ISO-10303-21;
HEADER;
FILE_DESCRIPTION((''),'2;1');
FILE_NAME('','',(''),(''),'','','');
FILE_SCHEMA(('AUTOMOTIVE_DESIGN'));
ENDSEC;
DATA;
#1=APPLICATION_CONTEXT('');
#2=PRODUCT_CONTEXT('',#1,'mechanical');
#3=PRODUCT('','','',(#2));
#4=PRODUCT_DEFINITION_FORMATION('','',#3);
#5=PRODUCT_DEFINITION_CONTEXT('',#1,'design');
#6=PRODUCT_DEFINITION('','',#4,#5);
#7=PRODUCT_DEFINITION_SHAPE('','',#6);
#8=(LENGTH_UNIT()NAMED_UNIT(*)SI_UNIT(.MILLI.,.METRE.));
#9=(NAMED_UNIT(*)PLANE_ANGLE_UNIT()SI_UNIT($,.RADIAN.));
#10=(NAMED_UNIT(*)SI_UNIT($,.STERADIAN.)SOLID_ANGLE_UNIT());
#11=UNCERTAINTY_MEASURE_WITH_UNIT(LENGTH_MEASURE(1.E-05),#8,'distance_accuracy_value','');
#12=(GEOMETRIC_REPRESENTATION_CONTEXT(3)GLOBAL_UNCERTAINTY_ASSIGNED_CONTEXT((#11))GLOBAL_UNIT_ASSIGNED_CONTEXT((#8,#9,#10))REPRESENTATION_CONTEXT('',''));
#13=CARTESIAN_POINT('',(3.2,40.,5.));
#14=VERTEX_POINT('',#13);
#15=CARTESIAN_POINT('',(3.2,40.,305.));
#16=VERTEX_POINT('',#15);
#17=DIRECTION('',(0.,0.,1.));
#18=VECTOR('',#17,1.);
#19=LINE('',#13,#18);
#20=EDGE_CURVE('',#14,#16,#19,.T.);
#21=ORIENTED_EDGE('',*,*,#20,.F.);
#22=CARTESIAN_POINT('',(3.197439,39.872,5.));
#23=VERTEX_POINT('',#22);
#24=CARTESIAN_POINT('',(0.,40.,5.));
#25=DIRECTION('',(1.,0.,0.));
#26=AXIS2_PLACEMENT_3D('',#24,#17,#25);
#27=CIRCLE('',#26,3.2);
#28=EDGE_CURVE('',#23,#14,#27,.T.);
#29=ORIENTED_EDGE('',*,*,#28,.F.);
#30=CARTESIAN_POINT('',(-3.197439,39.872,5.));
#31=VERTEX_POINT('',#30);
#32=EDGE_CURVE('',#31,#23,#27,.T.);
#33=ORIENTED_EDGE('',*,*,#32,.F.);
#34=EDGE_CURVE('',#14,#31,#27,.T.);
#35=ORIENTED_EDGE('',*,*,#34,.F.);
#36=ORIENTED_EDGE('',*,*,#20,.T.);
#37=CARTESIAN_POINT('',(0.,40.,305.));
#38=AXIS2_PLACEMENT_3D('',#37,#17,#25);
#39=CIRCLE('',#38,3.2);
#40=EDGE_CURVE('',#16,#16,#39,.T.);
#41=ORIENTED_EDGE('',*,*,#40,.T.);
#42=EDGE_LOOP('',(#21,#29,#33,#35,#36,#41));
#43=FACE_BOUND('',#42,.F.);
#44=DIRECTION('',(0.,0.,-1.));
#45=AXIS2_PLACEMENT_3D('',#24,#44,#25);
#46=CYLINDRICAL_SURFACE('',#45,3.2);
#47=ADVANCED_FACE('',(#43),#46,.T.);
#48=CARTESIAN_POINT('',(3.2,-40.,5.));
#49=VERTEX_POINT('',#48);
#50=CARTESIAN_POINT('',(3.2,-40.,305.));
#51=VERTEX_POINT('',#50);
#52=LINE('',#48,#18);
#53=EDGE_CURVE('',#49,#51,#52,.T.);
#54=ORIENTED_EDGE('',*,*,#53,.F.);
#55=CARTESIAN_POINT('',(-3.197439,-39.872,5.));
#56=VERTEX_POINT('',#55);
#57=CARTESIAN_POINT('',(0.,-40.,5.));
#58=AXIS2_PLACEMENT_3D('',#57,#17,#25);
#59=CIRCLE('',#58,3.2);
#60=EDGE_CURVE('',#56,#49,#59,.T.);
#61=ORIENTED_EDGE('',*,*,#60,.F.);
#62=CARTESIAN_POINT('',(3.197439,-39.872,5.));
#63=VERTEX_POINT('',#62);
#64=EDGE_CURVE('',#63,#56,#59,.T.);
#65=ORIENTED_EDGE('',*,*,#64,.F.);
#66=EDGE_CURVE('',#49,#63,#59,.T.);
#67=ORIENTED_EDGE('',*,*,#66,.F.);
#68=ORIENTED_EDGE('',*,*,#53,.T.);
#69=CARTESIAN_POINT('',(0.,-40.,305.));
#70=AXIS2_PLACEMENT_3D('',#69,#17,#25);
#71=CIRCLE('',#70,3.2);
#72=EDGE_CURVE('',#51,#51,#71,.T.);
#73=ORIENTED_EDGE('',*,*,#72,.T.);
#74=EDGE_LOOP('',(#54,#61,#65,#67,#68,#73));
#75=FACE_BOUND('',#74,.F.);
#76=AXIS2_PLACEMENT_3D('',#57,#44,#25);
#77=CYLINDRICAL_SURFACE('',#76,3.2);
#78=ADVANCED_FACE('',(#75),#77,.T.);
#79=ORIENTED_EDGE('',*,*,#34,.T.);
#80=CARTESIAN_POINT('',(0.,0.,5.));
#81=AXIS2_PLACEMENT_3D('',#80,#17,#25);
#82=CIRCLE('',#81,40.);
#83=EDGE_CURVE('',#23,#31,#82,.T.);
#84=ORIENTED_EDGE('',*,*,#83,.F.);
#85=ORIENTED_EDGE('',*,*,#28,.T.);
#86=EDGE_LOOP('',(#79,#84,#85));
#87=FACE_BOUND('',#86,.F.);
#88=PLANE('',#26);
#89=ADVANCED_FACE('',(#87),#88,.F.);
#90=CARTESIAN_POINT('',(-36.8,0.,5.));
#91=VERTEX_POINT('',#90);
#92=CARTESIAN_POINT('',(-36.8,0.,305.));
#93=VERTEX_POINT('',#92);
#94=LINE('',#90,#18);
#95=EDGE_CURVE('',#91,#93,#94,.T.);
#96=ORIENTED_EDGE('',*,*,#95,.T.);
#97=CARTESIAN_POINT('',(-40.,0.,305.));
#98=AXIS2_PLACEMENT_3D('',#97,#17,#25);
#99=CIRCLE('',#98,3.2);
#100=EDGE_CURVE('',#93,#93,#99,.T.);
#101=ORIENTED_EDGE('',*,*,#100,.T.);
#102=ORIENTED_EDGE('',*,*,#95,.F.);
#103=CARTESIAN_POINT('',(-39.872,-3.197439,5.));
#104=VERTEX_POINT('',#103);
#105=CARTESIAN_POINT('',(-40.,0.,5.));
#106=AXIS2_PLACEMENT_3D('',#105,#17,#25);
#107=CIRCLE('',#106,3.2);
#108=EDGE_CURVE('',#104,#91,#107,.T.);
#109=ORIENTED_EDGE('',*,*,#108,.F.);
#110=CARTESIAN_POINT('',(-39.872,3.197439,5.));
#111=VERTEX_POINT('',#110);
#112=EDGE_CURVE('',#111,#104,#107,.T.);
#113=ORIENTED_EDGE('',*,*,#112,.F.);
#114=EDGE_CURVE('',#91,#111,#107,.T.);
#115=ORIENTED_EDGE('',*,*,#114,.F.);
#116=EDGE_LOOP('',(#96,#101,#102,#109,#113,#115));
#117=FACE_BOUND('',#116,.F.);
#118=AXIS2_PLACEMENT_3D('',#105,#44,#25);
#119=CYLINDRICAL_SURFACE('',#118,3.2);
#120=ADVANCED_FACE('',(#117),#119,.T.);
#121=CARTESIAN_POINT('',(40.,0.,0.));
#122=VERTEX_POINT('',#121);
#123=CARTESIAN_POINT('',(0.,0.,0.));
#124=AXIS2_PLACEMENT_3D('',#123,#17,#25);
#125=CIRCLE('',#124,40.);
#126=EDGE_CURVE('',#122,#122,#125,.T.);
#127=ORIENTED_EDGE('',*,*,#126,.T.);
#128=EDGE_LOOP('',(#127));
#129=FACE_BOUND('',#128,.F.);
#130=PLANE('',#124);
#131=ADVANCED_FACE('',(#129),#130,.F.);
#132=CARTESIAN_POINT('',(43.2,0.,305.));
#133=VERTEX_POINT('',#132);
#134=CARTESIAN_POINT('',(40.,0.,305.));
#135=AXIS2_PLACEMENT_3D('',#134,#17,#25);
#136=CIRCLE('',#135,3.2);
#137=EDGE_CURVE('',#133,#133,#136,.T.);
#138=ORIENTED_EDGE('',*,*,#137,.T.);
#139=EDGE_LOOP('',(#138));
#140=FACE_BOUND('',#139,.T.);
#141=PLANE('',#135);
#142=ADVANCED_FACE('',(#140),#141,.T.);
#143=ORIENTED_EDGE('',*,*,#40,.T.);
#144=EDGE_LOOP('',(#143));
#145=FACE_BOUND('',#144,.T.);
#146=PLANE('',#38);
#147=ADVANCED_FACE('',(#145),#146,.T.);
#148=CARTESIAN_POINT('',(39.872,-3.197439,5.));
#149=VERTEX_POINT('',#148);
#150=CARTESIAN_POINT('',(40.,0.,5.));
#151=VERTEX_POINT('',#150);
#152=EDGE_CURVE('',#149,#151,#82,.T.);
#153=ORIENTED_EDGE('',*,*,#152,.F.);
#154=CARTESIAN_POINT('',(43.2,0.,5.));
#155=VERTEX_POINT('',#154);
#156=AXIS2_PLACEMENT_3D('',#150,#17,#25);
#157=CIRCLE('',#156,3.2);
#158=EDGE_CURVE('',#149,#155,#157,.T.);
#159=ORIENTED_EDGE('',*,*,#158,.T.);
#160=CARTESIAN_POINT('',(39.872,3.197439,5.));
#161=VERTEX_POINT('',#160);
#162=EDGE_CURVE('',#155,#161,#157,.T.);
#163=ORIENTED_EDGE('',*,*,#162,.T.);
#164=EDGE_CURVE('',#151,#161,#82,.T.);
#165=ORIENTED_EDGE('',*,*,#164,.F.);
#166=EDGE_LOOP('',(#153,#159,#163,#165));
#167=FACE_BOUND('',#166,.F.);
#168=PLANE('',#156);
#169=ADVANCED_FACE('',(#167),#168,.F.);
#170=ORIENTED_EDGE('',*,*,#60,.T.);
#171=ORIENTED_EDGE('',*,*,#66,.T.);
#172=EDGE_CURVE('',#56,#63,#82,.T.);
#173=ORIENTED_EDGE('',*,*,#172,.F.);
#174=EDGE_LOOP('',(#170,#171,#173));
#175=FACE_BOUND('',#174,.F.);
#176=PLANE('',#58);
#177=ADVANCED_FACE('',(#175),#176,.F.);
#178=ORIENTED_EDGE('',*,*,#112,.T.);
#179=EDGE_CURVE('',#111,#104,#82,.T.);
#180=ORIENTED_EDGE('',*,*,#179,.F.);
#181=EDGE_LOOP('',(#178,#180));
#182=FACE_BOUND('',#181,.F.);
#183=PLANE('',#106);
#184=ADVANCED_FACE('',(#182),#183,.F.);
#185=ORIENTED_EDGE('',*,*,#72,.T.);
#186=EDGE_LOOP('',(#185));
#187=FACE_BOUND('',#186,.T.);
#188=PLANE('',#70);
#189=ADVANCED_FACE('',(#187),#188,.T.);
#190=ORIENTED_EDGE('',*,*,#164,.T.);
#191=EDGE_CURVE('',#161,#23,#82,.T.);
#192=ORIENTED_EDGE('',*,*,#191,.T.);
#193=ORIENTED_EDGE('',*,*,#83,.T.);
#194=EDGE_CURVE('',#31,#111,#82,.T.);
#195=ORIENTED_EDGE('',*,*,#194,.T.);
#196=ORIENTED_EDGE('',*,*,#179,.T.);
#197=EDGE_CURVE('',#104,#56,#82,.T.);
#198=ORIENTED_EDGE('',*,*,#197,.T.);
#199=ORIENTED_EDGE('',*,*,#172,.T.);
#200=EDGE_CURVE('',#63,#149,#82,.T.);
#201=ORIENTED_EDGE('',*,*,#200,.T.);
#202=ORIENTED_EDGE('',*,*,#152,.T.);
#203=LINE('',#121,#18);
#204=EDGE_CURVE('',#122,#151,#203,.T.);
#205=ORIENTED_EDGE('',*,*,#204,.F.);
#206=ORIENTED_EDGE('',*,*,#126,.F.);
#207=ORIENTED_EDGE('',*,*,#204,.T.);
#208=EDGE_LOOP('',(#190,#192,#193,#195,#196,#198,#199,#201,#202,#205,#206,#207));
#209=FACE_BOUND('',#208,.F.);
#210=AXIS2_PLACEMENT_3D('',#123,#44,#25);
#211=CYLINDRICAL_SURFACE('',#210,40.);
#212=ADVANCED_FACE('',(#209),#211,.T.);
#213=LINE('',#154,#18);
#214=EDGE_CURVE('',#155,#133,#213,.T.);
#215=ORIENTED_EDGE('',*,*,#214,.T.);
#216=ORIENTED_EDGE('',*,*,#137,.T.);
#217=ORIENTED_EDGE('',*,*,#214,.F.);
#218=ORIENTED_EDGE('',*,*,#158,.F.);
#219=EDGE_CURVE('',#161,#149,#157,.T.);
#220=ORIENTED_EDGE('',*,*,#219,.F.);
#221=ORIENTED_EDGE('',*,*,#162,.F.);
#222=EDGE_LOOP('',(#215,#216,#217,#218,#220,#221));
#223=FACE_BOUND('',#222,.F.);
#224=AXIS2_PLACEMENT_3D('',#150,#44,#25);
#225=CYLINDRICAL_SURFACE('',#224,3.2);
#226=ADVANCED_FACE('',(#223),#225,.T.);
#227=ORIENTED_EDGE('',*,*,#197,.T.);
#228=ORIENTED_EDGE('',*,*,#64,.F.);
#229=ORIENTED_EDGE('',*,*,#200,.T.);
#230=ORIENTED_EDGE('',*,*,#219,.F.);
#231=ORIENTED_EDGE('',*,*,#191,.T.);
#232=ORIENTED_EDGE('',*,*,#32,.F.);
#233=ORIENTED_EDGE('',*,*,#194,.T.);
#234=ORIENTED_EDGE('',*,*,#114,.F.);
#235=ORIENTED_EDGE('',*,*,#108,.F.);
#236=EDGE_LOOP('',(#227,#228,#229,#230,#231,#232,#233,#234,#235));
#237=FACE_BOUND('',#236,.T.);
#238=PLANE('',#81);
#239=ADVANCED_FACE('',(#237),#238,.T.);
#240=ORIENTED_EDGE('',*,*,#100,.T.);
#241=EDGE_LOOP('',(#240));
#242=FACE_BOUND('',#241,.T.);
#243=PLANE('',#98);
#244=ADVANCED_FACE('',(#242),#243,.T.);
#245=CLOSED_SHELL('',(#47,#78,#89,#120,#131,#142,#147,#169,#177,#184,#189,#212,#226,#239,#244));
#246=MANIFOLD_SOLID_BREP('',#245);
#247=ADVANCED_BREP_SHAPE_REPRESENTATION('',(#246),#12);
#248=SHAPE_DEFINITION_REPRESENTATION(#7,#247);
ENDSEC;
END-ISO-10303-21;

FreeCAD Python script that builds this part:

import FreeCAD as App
import Part
import Sketcher

doc = App.newDocument("Part")
params = doc.addObject("Spreadsheet::Sheet", "Params")
for row, (alias, value) in enumerate([
    ("sketch1_diameter", "80 mm"),
    ("pad1_length", "5 mm"),
    ("sketch2_diameter", "6.4 mm"),
    ("pad2_length", "300 mm"),
], start=1):
    params.set(f"A{row}", alias)
    params.set(f"B{row}", "=" + value)
    params.setAlias(f"B{row}", alias)

body = doc.addObject("PartDesign::Body", "Body")

# Sketch on XY plane
sketch1 = body.newObject("Sketcher::SketchObject", "Sketch")
sketch1.AttachmentSupport = (doc.getObject("XY_Plane"), [""])
sketch1.MapMode = "FlatFace"
sketch1.addGeometry(Part.Circle(App.Vector(0, 0, 0), App.Vector(0, 0, 1), 40), False)
sketch1.addConstraint([
    Sketcher.Constraint("Coincident", 0, 3, -1, 1),
    Sketcher.Constraint("Diameter", 0, 80.0),
])
sketch1.setExpression("Constraints[1]", "Params.sketch1_diameter")
pad1 = body.newObject("PartDesign::Pad", "Pad")
pad1.Profile = sketch1
pad1.setExpression("Length", "Params.pad1_length")

# Sketch on XY plane
sketch2 = body.newObject("Sketcher::SketchObject", "Sketch001")
sketch2.AttachmentSupport = (doc.getObject("XY_Plane"), [""])
sketch2.MapMode = "FlatFace"
sketch2.AttachmentOffset = App.Placement(App.Vector(0, 0, 5), App.Rotation())
sketch2.addGeometry([
    Part.Circle(App.Vector(0, 40, 0), App.Vector(0, 0, 1), 3.2),
    Part.Circle(App.Vector(-40, 0, 0), App.Vector(0, 0, 1), 3.2),
    Part.Circle(App.Vector(0, -40, 0), App.Vector(0, 0, 1), 3.2),
    Part.Circle(App.Vector(40, 0, 0), App.Vector(0, 0, 1), 3.2),
], False)
sketch2.addConstraint([
    Sketcher.Constraint("Equal", 0, 1),
    Sketcher.Constraint("Equal", 1, 2),
    Sketcher.Constraint("Equal", 2, 3),
    Sketcher.Constraint("Symmetric", 0, 3, 2, 3, -1, 1),
    Sketcher.Constraint("Symmetric", 1, 3, 3, 3, -1, 1),
    Sketcher.Constraint("PointOnObject", 0, 3, -2),
    Sketcher.Constraint("PointOnObject", 1, 3, -1),
    Sketcher.Constraint("Diameter", 0, 6.4),
    Sketcher.Constraint("DistanceY", -1, 1, 0, 3, 40.0),
    Sketcher.Constraint("DistanceX", 1, 3, -1, 1, 40.0),
])
sketch2.setExpression("Constraints[7]", "Params.sketch2_diameter")
pad2 = body.newObject("PartDesign::Pad", "Pad001")
pad2.Profile = sketch2
pad2.setExpression("Length", "Params.pad2_length")

doc.recompute()
